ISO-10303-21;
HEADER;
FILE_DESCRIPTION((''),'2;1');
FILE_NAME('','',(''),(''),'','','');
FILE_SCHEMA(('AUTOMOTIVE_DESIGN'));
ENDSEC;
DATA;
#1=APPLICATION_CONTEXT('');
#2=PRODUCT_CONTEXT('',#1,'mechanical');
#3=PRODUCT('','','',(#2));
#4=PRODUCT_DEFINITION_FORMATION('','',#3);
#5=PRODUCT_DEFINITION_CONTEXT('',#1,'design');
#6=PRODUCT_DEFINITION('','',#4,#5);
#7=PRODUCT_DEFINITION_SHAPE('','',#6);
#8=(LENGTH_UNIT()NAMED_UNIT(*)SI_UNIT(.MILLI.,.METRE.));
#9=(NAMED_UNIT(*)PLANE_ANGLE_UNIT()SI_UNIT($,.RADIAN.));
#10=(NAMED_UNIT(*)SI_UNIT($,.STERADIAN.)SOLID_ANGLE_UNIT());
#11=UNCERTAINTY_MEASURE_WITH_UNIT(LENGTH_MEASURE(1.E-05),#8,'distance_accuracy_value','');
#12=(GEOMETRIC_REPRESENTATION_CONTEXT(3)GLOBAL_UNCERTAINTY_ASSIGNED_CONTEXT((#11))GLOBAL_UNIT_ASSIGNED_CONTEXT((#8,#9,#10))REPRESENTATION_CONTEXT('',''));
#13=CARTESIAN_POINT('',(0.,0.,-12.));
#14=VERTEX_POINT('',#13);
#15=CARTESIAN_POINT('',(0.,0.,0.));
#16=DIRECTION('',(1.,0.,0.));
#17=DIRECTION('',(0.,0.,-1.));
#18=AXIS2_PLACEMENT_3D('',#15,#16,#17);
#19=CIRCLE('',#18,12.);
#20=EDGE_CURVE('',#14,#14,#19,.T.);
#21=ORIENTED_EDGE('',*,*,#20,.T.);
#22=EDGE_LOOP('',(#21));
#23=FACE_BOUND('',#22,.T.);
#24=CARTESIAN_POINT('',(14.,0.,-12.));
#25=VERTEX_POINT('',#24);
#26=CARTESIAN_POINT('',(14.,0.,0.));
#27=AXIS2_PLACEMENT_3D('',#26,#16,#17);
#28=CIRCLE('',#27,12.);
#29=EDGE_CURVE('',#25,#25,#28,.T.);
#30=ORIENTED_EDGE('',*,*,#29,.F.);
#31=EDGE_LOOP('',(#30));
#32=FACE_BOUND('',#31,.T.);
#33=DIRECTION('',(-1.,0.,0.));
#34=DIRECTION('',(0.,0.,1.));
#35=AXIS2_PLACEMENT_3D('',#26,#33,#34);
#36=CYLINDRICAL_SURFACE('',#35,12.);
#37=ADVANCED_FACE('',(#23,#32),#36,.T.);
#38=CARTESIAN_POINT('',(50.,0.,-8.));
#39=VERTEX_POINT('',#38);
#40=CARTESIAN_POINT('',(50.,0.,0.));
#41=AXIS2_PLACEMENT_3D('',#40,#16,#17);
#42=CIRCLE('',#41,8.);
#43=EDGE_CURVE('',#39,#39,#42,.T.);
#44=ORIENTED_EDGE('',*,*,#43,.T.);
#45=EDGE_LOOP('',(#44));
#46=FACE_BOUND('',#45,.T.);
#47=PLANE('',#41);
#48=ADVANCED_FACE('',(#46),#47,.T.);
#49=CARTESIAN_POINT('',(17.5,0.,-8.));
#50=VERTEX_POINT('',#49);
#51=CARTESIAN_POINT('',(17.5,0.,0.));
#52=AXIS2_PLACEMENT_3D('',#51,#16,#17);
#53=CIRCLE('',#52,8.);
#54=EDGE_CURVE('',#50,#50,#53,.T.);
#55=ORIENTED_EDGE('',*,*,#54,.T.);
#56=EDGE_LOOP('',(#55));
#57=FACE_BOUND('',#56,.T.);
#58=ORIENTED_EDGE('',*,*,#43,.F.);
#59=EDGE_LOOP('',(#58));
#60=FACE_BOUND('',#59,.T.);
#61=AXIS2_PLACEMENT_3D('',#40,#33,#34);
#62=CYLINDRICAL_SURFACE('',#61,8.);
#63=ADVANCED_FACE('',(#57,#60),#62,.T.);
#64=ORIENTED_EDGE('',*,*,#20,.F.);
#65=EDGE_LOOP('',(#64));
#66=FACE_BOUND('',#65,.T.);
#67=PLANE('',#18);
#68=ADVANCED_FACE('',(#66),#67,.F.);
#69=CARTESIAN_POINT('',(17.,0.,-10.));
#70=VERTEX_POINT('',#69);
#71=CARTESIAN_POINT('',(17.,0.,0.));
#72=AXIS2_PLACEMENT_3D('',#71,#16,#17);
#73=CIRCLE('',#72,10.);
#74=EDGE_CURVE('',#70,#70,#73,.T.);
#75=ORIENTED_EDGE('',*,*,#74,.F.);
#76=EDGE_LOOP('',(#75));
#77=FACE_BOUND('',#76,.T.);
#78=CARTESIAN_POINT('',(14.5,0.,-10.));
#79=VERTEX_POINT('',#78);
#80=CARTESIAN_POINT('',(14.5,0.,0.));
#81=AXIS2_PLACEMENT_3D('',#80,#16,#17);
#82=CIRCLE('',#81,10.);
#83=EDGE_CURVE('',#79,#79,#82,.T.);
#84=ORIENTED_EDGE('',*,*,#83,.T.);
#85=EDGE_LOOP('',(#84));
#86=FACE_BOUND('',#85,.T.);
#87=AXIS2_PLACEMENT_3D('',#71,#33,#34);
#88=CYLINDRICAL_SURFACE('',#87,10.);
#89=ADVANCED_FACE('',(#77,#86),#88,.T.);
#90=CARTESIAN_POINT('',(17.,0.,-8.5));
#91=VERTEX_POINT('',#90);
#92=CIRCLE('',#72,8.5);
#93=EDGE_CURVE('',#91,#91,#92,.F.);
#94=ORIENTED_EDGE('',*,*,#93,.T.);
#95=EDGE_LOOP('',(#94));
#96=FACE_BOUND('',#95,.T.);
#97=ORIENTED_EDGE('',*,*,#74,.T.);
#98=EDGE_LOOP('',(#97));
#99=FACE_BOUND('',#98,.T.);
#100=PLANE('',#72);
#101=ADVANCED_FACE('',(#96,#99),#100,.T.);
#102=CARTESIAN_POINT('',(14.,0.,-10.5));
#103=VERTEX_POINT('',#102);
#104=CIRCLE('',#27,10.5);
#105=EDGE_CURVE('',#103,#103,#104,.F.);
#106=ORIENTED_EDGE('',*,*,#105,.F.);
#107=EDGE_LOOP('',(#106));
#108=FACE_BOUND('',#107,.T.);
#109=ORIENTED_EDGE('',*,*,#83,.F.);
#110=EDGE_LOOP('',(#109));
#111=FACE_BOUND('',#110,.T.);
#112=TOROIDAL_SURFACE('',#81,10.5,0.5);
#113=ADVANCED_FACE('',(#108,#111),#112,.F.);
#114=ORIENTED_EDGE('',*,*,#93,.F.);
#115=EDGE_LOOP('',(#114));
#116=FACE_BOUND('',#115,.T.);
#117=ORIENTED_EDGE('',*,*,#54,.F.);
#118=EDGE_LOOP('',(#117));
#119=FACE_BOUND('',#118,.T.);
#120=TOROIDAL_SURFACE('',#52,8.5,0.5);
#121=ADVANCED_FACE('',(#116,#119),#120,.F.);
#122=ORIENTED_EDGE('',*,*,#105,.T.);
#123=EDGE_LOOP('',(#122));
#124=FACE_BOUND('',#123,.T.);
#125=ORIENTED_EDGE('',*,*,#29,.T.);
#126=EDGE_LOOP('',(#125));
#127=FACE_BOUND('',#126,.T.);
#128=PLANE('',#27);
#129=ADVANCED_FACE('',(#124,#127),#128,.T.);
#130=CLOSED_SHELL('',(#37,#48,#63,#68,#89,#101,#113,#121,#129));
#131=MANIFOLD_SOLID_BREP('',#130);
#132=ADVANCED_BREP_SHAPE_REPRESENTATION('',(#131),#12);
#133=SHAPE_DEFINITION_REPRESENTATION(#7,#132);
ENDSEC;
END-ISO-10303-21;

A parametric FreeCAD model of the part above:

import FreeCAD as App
import Part
import Sketcher

V = App.Vector
Q = App.Units.Quantity


def edges_at(feature, points):
    """Names of the edges that pass closest to the given points."""
    edges = feature.Shape.Edges
    near = lambda p: min(range(len(edges)), key=lambda i: edges[i].distToShape(Part.Vertex(*p))[0])
    return sorted({f"Edge{near(p) + 1}" for p in points})

doc = App.newDocument("Part")
body = doc.addObject("PartDesign::Body", "Body")

sketch1 = body.newObject("Sketcher::SketchObject", "Sketch")
sketch1.AttachmentSupport = (doc.getObject("YZ_Plane"), [""])
sketch1.MapMode = "FlatFace"
sketch1.addGeometry(Part.Circle(V(0, 0, 0), V(0, 0, 1), 12), False)
sketch1.addConstraint([
    Sketcher.Constraint("Coincident", 0, 3, -1, 1),
    Sketcher.Constraint("Diameter", 0, Q("24 mm")),
])
pad1 = body.newObject("PartDesign::Pad", "Pad")
pad1.Profile = sketch1
pad1.Length = 14

sketch2 = body.newObject("Sketcher::SketchObject", "Sketch001")
sketch2.AttachmentSupport = (doc.getObject("YZ_Plane"), [""])
sketch2.MapMode = "FlatFace"
sketch2.AttachmentOffset = App.Placement(V(0, 0, 14), App.Rotation())
sketch2.addGeometry(Part.Circle(V(0, 0, 0), V(0, 0, 1), 10), False)
sketch2.addConstraint([
    Sketcher.Constraint("Coincident", 0, 3, -1, 1),
    Sketcher.Constraint("Diameter", 0, Q("20 mm")),
])
pad2 = body.newObject("PartDesign::Pad", "Pad001")
pad2.Profile = sketch2
pad2.Length = 3

sketch3 = body.newObject("Sketcher::SketchObject", "Sketch002")
sketch3.AttachmentSupport = (doc.getObject("YZ_Plane"), [""])
sketch3.MapMode = "FlatFace"
sketch3.AttachmentOffset = App.Placement(V(0, 0, 17), App.Rotation())
sketch3.addGeometry(Part.Circle(V(0, 0, 0), V(0, 0, 1), 8), False)
sketch3.addConstraint([
    Sketcher.Constraint("Coincident", 0, 3, -1, 1),
    Sketcher.Constraint("Diameter", 0, Q("16 mm")),
])
pad3 = body.newObject("PartDesign::Pad", "Pad002")
pad3.Profile = sketch3
pad3.Length = 33
doc.recompute()

fillet = body.newObject("PartDesign::Fillet", "Fillet")
fillet.Base = (pad3, edges_at(pad3, [(17, 0, 8), (14, 0, 10)]))
fillet.Radius = 0.5

doc.recompute()
